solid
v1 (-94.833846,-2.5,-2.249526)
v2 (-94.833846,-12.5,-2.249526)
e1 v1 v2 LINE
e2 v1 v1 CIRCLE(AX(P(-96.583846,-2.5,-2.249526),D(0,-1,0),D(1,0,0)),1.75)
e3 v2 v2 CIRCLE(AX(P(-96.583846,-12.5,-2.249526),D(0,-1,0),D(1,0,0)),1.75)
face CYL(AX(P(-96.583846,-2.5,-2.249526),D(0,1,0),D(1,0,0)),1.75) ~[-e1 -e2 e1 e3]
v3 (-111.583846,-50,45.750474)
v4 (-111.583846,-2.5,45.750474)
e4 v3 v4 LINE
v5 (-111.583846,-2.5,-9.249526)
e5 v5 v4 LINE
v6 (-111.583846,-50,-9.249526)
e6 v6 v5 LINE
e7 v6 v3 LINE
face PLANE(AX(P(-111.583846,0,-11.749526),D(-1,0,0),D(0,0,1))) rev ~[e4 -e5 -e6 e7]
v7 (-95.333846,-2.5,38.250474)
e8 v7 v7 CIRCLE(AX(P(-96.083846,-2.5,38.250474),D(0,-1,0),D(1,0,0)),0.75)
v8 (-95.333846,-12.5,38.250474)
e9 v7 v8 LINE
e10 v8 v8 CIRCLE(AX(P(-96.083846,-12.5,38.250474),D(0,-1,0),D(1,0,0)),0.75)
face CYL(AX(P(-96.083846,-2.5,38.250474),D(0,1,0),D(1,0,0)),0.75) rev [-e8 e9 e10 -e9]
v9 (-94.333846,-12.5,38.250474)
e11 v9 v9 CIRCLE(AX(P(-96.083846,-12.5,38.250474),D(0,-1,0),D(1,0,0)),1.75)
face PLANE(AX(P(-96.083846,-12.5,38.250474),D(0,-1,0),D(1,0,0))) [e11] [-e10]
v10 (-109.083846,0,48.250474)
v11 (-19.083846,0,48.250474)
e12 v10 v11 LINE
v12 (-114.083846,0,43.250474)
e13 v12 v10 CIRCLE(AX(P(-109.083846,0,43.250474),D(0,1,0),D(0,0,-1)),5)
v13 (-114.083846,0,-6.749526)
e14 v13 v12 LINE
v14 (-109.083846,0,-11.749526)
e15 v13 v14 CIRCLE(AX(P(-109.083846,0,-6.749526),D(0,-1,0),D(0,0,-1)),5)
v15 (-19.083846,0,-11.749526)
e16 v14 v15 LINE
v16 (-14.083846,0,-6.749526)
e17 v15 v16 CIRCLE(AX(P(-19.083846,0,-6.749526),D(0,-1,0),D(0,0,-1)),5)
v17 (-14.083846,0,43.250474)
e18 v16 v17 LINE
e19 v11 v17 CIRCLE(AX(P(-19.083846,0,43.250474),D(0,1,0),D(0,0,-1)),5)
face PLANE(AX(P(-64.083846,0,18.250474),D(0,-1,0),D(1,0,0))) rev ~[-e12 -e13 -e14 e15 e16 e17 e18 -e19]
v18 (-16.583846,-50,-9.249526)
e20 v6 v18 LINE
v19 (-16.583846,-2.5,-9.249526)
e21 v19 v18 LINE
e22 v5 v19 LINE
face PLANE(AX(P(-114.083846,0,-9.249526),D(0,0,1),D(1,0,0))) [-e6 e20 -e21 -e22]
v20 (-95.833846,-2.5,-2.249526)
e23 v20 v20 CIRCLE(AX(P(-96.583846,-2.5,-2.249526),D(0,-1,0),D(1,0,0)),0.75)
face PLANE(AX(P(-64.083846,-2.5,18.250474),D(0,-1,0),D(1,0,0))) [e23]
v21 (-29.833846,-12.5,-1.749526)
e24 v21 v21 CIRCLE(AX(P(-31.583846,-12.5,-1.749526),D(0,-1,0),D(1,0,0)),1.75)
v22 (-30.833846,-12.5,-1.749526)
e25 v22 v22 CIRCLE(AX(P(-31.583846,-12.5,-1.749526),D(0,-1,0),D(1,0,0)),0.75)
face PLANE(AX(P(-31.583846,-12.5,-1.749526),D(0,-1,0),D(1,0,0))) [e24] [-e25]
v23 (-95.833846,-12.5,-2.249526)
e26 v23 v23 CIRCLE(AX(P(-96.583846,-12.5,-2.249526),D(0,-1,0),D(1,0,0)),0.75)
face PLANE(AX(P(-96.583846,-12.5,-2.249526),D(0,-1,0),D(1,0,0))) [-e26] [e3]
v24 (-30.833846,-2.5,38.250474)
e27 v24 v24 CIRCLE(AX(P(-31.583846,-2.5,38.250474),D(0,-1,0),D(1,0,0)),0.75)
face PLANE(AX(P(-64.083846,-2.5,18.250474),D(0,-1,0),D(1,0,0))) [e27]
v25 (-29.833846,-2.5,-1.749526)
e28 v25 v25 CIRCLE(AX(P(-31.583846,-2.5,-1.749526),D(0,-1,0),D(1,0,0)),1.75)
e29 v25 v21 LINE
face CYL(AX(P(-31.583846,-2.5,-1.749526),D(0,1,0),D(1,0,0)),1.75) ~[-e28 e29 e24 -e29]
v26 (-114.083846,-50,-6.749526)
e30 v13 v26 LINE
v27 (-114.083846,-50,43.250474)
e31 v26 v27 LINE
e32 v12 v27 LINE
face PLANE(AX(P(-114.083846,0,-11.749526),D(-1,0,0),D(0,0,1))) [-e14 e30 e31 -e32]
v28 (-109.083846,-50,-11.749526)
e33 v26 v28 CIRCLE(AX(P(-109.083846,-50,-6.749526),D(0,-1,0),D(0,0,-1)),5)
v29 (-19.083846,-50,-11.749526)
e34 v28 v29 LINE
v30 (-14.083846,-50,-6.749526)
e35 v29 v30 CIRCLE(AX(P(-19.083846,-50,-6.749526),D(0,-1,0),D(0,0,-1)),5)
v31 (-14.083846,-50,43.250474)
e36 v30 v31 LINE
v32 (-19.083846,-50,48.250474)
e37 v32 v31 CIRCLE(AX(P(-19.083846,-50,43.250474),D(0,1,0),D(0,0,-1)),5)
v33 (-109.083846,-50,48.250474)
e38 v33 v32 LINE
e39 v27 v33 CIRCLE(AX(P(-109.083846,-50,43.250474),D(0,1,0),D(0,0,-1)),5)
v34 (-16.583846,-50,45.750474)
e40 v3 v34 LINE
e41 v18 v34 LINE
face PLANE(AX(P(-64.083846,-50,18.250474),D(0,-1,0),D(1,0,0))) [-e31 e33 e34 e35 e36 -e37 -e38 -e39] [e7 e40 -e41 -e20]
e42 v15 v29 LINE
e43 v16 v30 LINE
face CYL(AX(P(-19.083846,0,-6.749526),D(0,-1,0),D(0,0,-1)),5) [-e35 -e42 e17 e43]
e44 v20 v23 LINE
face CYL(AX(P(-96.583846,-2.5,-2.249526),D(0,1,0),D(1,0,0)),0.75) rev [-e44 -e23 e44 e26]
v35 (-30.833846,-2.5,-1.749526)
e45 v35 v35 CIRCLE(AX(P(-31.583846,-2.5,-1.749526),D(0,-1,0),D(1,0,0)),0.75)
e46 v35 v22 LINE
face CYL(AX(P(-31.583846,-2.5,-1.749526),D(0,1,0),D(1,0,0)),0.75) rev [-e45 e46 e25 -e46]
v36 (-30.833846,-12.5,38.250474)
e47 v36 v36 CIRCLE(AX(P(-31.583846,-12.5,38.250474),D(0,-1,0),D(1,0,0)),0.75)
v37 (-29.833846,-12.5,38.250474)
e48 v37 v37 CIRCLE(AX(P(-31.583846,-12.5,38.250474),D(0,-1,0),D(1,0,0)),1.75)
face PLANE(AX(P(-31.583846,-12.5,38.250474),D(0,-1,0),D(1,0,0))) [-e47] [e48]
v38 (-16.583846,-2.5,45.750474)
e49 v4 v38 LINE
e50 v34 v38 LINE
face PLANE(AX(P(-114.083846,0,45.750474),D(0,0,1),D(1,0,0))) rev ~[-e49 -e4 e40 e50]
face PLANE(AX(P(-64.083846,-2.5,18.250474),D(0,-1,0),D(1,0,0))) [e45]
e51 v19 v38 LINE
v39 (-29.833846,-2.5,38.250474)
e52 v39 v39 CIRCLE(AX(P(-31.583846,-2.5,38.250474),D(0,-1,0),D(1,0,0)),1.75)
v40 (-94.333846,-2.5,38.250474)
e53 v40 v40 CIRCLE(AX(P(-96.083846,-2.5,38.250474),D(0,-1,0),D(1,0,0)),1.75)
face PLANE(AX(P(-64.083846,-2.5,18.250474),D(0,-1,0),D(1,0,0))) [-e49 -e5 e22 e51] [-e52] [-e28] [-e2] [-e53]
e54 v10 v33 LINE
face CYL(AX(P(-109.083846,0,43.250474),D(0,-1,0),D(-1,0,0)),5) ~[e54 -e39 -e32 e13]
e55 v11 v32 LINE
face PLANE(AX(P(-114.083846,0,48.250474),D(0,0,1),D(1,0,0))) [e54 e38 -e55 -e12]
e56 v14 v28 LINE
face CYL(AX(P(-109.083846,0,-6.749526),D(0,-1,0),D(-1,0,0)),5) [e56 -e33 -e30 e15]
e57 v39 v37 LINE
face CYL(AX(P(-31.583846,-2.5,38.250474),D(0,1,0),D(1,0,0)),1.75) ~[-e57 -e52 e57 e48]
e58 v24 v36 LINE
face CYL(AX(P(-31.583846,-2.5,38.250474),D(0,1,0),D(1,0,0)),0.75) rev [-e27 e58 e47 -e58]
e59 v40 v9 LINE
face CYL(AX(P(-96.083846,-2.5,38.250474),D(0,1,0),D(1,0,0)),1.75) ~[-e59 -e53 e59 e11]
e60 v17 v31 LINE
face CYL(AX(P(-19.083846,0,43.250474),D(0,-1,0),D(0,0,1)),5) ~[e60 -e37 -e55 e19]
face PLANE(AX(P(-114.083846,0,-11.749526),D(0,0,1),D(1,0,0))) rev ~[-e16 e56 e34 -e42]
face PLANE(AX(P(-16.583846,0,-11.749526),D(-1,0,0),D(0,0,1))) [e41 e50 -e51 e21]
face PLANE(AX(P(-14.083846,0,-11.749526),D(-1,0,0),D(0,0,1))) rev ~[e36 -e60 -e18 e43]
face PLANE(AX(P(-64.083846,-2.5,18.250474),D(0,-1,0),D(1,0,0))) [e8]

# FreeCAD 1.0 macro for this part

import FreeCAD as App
import Part
import Sketcher
from FreeCAD import Vector


def edges_at(feature, points):
    """Names of the edges that pass closest to the given points."""
    edges = feature.Shape.Edges
    near = lambda p: min(range(len(edges)), key=lambda i: edges[i].distToShape(Part.Vertex(*p))[0])
    return sorted({f"Edge{near(p) + 1}" for p in points})


def faces_at(feature, points):
    """Names of the faces that lie closest to the given points."""
    faces = feature.Shape.Faces
    near = lambda p: min(range(len(faces)), key=lambda i: faces[i].distToShape(Part.Vertex(*p))[0])
    return sorted({f"Face{near(p) + 1}" for p in points})

doc = App.newDocument("Part")
body = doc.addObject("PartDesign::Body", "Body")

# Sketch on XZ plane
sketch1 = body.newObject("Sketcher::SketchObject", "Sketch")
sketch1.AttachmentSupport = (doc.getObject("XZ_Plane"), [""])
sketch1.MapMode = "FlatFace"
sketch1.addGeometry([
    Part.LineSegment(Vector(-114, 48, 0), Vector(-114, -12, 0)),
    Part.LineSegment(Vector(-114, -12, 0), Vector(-14, -12, 0)),
    Part.LineSegment(Vector(-14, -12, 0), Vector(-14, 48, 0)),
    Part.LineSegment(Vector(-14, 48, 0), Vector(-114, 48, 0)),
], False)
sketch1.addConstraint([
    Sketcher.Constraint("Coincident", 0, 2, 1, 1),
    Sketcher.Constraint("Coincident", 1, 2, 2, 1),
    Sketcher.Constraint("Coincident", 2, 2, 3, 1),
    Sketcher.Constraint("Coincident", 3, 2, 0, 1),
    Sketcher.Constraint("Vertical", 0),
    Sketcher.Constraint("Horizontal", 1),
    Sketcher.Constraint("Vertical", 2),
    Sketcher.Constraint("Horizontal", 3),
    Sketcher.Constraint("DistanceX", 1, 1, 1, 2, 100.0),
    Sketcher.Constraint("DistanceY", 0, 2, 0, 1, 60.0),
    Sketcher.Constraint("DistanceX", 0, 2, -1, 1, 114.083846),
    Sketcher.Constraint("DistanceY", 0, 2, -1, 1, 11.749526),
])
pad1 = body.newObject("PartDesign::Pad", "Pad")
pad1.Profile = sketch1
pad1.Length = 50
doc.recompute()

thickness = body.newObject("PartDesign::Thickness", "Thickness")
thickness.Base = (pad1, faces_at(pad1, [(-64.084, -50, 18.25)]))
thickness.Value = 2.5
thickness.Reversed = True
thickness.Join = "Arc"

# Sketch on XZ plane
sketch2 = body.newObject("Sketcher::SketchObject", "Sketch001")
sketch2.AttachmentSupport = (doc.getObject("XZ_Plane"), [""])
sketch2.MapMode = "FlatFace"
sketch2.AttachmentOffset = App.Placement(Vector(0, 0, 2.5), App.Rotation())
sketch2.addGeometry([
    Part.Circle(Vector(-96.1, 38.3, 0), Vector(0, 0, 1), 1.8),  # 0
    Part.Circle(Vector(-96.1, 38.3, 0), Vector(0, 0, 1), 0.8),  # 1
    Part.Circle(Vector(-31.6, 38.3, 0), Vector(0, 0, 1), 1.8),  # 2
    Part.Circle(Vector(-31.6, 38.3, 0), Vector(0, 0, 1), 0.8),  # 3
    Part.Circle(Vector(-96.6, -2.2, 0), Vector(0, 0, 1), 1.8),  # 4
    Part.Circle(Vector(-96.6, -2.2, 0), Vector(0, 0, 1), 0.8),  # 5
    Part.Circle(Vector(-31.6, -1.7, 0), Vector(0, 0, 1), 1.8),  # 6
    Part.Circle(Vector(-31.6, -1.7, 0), Vector(0, 0, 1), 0.8),  # 7
], False)
sketch2.addConstraint([
    Sketcher.Constraint("Coincident", 1, 3, 0, 3),
    Sketcher.Constraint("Coincident", 3, 3, 2, 3),
    Sketcher.Constraint("Coincident", 5, 3, 4, 3),
    Sketcher.Constraint("Coincident", 7, 3, 6, 3),
    Sketcher.Constraint("Equal", 0, 2),
    Sketcher.Constraint("Equal", 1, 3),
    Sketcher.Constraint("Equal", 2, 4),
    Sketcher.Constraint("Equal", 3, 5),
    Sketcher.Constraint("Equal", 4, 6),
    Sketcher.Constraint("Equal", 5, 7),
    Sketcher.Constraint("Horizontal", 1, 3, 2, 3),
    Sketcher.Constraint("Vertical", 3, 3, 6, 3),
    Sketcher.Constraint("Diameter", 0, 3.5),
    Sketcher.Constraint("Diameter", 1, 1.5),
    Sketcher.Constraint("DistanceX", 4, 3, 2, 3, 65.0),
    Sketcher.Constraint("DistanceY", 6, 3, 2, 3, 40.0),
    Sketcher.Constraint("DistanceX", 0, 3, 2, 3, 64.5),
    Sketcher.Constraint("DistanceY", 4, 3, 0, 3, 40.5),
    Sketcher.Constraint("DistanceX", 0, 3, -1, 1, 96.083846),
    Sketcher.Constraint("DistanceY", -1, 1, 0, 3, 38.250474),
])
pad2 = body.newObject("PartDesign::Pad", "Pad001")
pad2.Profile = sketch2
pad2.Length = 10
doc.recompute()

fillet = body.newObject("PartDesign::Fillet", "Fillet")
fillet.Base = (pad2, edges_at(pad2, [
    (-114.084, -25, 48.25),
    (-114.084, -25, -11.75),
    (-14.084, -25, -11.75),
    (-14.084, -25, 48.25),
]))
fillet.Radius = 5

doc.recompute()
